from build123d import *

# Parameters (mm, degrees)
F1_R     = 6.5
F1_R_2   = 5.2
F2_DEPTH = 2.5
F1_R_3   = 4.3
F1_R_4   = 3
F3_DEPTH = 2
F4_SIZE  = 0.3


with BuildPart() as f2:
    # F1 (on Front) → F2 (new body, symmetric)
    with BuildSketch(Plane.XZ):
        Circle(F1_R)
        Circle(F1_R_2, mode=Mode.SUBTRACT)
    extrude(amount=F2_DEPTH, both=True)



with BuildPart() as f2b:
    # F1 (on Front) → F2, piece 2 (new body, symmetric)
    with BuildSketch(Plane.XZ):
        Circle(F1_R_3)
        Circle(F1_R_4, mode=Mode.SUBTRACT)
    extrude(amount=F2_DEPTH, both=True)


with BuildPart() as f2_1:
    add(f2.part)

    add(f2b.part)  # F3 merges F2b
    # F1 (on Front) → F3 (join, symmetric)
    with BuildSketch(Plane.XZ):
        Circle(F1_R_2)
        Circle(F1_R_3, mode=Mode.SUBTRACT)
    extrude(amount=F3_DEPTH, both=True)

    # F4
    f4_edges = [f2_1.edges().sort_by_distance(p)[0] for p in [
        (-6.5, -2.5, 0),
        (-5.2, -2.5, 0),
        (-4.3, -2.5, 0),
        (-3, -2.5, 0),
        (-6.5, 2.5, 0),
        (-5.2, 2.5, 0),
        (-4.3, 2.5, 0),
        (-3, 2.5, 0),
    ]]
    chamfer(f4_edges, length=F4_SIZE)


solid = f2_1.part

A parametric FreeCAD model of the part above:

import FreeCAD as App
import Part
import Sketcher
Q = App.Units.Quantity


def edges_at(feature, points):
    """Names of the edges that pass closest to the given points."""
    edges = feature.Shape.Edges
    near = lambda p: min(range(len(edges)), key=lambda i: edges[i].distToShape(Part.Vertex(*p))[0])
    return sorted({f"Edge{near(p) + 1}" for p in points})

doc = App.newDocument("Part")
body = doc.addObject("PartDesign::Body", "Body")

# Sketch on XZ plane
sketch1 = doc.addObject("Sketcher::SketchObject", "Sketch")
body.addObject(sketch1)
sketch1.AttachmentSupport = (doc.XZ_Plane, [""])
sketch1.MapMode = "FlatFace"
sketch1.addGeometry([
    Part.Circle(App.Vector(0, 0, 0), App.Vector(0, 0, 1), 6),
    Part.Circle(App.Vector(0, 0, 0), App.Vector(0, 0, 1), 5),
], False)
sketch1.addConstraint([
    Sketcher.Constraint("Coincident", 0, 3, -1, 1),
    Sketcher.Constraint("Coincident", 1, 3, -1, 1),
    Sketcher.Constraint("Diameter", 0, Q("13 mm")),
    Sketcher.Constraint("Diameter", 1, Q("10.4 mm")),
])
pad1 = doc.addObject("PartDesign::Pad", "Pad")
body.addObject(pad1)
pad1.Profile = sketch1
pad1.Length = 5
pad1.Midplane = True
body2 = doc.addObject("PartDesign::Body", "Body001")

# Sketch on XZ plane
sketch2 = doc.addObject("Sketcher::SketchObject", "Sketch001")
body2.addObject(sketch2)
sketch2.AttachmentSupport = (doc.getObject("XZ_Plane001"), [""])
sketch2.MapMode = "FlatFace"
sketch2.addGeometry([
    Part.Circle(App.Vector(0, 0, 0), App.Vector(0, 0, 1), 4.3),
    Part.Circle(App.Vector(0, 0, 0), App.Vector(0, 0, 1), 3),
], False)
sketch2.addConstraint([
    Sketcher.Constraint("Coincident", 0, 3, -1, 1),
    Sketcher.Constraint("Coincident", 1, 3, -1, 1),
    Sketcher.Constraint("Diameter", 1, Q("6 mm")),
    Sketcher.Constraint("Diameter", 0, Q("8.6 mm")),
])
pad2 = doc.addObject("PartDesign::Pad", "Pad001")
body2.addObject(pad2)
pad2.Profile = sketch2
pad2.Length = 5
pad2.Midplane = True
body.AllowCompound = True
doc.recompute()

boolean = doc.addObject("PartDesign::Boolean", "Boolean")
body.addObject(boolean)
boolean.Type = "Fuse"
boolean.addObjects([body2])

# Sketch on XZ plane
sketch3 = doc.addObject("Sketcher::SketchObject", "Sketch002")
body.addObject(sketch3)
sketch3.AttachmentSupport = (doc.XZ_Plane, [""])
sketch3.MapMode = "FlatFace"
sketch3.addGeometry([
    Part.Circle(App.Vector(0, 0, 0), App.Vector(0, 0, 1), 5.2),
    Part.Circle(App.Vector(0, 0, 0), App.Vector(0, 0, 1), 4.3),
], False)
sketch3.addConstraint([
    Sketcher.Constraint("Coincident", 0, 3, -1, 1),
    Sketcher.Constraint("Coincident", 1, 3, -1, 1),
    Sketcher.Constraint("Diameter", 0, Q("10.4 mm")),
    Sketcher.Constraint("Diameter", 1, Q("8.6 mm")),
])
pad3 = doc.addObject("PartDesign::Pad", "Pad002")
body.addObject(pad3)
pad3.Profile = sketch3
pad3.Length = 4
pad3.Midplane = True
doc.recompute()

chamfer = doc.addObject("PartDesign::Chamfer", "Chamfer")
body.addObject(chamfer)
chamfer.Base = (pad3, edges_at(pad3, [
    (-6.5, -2.5, 0),
    (-5.2, -2.5, 0),
    (-4.3, -2.5, 0),
    (-3, -2.5, 0),
    (-6.5, 2.5, 0),
    (-5.2, 2.5, 0),
    (-4.3, 2.5, 0),
    (-3, 2.5, 0),
]))
chamfer.Size = 0.3

doc.recompute()
